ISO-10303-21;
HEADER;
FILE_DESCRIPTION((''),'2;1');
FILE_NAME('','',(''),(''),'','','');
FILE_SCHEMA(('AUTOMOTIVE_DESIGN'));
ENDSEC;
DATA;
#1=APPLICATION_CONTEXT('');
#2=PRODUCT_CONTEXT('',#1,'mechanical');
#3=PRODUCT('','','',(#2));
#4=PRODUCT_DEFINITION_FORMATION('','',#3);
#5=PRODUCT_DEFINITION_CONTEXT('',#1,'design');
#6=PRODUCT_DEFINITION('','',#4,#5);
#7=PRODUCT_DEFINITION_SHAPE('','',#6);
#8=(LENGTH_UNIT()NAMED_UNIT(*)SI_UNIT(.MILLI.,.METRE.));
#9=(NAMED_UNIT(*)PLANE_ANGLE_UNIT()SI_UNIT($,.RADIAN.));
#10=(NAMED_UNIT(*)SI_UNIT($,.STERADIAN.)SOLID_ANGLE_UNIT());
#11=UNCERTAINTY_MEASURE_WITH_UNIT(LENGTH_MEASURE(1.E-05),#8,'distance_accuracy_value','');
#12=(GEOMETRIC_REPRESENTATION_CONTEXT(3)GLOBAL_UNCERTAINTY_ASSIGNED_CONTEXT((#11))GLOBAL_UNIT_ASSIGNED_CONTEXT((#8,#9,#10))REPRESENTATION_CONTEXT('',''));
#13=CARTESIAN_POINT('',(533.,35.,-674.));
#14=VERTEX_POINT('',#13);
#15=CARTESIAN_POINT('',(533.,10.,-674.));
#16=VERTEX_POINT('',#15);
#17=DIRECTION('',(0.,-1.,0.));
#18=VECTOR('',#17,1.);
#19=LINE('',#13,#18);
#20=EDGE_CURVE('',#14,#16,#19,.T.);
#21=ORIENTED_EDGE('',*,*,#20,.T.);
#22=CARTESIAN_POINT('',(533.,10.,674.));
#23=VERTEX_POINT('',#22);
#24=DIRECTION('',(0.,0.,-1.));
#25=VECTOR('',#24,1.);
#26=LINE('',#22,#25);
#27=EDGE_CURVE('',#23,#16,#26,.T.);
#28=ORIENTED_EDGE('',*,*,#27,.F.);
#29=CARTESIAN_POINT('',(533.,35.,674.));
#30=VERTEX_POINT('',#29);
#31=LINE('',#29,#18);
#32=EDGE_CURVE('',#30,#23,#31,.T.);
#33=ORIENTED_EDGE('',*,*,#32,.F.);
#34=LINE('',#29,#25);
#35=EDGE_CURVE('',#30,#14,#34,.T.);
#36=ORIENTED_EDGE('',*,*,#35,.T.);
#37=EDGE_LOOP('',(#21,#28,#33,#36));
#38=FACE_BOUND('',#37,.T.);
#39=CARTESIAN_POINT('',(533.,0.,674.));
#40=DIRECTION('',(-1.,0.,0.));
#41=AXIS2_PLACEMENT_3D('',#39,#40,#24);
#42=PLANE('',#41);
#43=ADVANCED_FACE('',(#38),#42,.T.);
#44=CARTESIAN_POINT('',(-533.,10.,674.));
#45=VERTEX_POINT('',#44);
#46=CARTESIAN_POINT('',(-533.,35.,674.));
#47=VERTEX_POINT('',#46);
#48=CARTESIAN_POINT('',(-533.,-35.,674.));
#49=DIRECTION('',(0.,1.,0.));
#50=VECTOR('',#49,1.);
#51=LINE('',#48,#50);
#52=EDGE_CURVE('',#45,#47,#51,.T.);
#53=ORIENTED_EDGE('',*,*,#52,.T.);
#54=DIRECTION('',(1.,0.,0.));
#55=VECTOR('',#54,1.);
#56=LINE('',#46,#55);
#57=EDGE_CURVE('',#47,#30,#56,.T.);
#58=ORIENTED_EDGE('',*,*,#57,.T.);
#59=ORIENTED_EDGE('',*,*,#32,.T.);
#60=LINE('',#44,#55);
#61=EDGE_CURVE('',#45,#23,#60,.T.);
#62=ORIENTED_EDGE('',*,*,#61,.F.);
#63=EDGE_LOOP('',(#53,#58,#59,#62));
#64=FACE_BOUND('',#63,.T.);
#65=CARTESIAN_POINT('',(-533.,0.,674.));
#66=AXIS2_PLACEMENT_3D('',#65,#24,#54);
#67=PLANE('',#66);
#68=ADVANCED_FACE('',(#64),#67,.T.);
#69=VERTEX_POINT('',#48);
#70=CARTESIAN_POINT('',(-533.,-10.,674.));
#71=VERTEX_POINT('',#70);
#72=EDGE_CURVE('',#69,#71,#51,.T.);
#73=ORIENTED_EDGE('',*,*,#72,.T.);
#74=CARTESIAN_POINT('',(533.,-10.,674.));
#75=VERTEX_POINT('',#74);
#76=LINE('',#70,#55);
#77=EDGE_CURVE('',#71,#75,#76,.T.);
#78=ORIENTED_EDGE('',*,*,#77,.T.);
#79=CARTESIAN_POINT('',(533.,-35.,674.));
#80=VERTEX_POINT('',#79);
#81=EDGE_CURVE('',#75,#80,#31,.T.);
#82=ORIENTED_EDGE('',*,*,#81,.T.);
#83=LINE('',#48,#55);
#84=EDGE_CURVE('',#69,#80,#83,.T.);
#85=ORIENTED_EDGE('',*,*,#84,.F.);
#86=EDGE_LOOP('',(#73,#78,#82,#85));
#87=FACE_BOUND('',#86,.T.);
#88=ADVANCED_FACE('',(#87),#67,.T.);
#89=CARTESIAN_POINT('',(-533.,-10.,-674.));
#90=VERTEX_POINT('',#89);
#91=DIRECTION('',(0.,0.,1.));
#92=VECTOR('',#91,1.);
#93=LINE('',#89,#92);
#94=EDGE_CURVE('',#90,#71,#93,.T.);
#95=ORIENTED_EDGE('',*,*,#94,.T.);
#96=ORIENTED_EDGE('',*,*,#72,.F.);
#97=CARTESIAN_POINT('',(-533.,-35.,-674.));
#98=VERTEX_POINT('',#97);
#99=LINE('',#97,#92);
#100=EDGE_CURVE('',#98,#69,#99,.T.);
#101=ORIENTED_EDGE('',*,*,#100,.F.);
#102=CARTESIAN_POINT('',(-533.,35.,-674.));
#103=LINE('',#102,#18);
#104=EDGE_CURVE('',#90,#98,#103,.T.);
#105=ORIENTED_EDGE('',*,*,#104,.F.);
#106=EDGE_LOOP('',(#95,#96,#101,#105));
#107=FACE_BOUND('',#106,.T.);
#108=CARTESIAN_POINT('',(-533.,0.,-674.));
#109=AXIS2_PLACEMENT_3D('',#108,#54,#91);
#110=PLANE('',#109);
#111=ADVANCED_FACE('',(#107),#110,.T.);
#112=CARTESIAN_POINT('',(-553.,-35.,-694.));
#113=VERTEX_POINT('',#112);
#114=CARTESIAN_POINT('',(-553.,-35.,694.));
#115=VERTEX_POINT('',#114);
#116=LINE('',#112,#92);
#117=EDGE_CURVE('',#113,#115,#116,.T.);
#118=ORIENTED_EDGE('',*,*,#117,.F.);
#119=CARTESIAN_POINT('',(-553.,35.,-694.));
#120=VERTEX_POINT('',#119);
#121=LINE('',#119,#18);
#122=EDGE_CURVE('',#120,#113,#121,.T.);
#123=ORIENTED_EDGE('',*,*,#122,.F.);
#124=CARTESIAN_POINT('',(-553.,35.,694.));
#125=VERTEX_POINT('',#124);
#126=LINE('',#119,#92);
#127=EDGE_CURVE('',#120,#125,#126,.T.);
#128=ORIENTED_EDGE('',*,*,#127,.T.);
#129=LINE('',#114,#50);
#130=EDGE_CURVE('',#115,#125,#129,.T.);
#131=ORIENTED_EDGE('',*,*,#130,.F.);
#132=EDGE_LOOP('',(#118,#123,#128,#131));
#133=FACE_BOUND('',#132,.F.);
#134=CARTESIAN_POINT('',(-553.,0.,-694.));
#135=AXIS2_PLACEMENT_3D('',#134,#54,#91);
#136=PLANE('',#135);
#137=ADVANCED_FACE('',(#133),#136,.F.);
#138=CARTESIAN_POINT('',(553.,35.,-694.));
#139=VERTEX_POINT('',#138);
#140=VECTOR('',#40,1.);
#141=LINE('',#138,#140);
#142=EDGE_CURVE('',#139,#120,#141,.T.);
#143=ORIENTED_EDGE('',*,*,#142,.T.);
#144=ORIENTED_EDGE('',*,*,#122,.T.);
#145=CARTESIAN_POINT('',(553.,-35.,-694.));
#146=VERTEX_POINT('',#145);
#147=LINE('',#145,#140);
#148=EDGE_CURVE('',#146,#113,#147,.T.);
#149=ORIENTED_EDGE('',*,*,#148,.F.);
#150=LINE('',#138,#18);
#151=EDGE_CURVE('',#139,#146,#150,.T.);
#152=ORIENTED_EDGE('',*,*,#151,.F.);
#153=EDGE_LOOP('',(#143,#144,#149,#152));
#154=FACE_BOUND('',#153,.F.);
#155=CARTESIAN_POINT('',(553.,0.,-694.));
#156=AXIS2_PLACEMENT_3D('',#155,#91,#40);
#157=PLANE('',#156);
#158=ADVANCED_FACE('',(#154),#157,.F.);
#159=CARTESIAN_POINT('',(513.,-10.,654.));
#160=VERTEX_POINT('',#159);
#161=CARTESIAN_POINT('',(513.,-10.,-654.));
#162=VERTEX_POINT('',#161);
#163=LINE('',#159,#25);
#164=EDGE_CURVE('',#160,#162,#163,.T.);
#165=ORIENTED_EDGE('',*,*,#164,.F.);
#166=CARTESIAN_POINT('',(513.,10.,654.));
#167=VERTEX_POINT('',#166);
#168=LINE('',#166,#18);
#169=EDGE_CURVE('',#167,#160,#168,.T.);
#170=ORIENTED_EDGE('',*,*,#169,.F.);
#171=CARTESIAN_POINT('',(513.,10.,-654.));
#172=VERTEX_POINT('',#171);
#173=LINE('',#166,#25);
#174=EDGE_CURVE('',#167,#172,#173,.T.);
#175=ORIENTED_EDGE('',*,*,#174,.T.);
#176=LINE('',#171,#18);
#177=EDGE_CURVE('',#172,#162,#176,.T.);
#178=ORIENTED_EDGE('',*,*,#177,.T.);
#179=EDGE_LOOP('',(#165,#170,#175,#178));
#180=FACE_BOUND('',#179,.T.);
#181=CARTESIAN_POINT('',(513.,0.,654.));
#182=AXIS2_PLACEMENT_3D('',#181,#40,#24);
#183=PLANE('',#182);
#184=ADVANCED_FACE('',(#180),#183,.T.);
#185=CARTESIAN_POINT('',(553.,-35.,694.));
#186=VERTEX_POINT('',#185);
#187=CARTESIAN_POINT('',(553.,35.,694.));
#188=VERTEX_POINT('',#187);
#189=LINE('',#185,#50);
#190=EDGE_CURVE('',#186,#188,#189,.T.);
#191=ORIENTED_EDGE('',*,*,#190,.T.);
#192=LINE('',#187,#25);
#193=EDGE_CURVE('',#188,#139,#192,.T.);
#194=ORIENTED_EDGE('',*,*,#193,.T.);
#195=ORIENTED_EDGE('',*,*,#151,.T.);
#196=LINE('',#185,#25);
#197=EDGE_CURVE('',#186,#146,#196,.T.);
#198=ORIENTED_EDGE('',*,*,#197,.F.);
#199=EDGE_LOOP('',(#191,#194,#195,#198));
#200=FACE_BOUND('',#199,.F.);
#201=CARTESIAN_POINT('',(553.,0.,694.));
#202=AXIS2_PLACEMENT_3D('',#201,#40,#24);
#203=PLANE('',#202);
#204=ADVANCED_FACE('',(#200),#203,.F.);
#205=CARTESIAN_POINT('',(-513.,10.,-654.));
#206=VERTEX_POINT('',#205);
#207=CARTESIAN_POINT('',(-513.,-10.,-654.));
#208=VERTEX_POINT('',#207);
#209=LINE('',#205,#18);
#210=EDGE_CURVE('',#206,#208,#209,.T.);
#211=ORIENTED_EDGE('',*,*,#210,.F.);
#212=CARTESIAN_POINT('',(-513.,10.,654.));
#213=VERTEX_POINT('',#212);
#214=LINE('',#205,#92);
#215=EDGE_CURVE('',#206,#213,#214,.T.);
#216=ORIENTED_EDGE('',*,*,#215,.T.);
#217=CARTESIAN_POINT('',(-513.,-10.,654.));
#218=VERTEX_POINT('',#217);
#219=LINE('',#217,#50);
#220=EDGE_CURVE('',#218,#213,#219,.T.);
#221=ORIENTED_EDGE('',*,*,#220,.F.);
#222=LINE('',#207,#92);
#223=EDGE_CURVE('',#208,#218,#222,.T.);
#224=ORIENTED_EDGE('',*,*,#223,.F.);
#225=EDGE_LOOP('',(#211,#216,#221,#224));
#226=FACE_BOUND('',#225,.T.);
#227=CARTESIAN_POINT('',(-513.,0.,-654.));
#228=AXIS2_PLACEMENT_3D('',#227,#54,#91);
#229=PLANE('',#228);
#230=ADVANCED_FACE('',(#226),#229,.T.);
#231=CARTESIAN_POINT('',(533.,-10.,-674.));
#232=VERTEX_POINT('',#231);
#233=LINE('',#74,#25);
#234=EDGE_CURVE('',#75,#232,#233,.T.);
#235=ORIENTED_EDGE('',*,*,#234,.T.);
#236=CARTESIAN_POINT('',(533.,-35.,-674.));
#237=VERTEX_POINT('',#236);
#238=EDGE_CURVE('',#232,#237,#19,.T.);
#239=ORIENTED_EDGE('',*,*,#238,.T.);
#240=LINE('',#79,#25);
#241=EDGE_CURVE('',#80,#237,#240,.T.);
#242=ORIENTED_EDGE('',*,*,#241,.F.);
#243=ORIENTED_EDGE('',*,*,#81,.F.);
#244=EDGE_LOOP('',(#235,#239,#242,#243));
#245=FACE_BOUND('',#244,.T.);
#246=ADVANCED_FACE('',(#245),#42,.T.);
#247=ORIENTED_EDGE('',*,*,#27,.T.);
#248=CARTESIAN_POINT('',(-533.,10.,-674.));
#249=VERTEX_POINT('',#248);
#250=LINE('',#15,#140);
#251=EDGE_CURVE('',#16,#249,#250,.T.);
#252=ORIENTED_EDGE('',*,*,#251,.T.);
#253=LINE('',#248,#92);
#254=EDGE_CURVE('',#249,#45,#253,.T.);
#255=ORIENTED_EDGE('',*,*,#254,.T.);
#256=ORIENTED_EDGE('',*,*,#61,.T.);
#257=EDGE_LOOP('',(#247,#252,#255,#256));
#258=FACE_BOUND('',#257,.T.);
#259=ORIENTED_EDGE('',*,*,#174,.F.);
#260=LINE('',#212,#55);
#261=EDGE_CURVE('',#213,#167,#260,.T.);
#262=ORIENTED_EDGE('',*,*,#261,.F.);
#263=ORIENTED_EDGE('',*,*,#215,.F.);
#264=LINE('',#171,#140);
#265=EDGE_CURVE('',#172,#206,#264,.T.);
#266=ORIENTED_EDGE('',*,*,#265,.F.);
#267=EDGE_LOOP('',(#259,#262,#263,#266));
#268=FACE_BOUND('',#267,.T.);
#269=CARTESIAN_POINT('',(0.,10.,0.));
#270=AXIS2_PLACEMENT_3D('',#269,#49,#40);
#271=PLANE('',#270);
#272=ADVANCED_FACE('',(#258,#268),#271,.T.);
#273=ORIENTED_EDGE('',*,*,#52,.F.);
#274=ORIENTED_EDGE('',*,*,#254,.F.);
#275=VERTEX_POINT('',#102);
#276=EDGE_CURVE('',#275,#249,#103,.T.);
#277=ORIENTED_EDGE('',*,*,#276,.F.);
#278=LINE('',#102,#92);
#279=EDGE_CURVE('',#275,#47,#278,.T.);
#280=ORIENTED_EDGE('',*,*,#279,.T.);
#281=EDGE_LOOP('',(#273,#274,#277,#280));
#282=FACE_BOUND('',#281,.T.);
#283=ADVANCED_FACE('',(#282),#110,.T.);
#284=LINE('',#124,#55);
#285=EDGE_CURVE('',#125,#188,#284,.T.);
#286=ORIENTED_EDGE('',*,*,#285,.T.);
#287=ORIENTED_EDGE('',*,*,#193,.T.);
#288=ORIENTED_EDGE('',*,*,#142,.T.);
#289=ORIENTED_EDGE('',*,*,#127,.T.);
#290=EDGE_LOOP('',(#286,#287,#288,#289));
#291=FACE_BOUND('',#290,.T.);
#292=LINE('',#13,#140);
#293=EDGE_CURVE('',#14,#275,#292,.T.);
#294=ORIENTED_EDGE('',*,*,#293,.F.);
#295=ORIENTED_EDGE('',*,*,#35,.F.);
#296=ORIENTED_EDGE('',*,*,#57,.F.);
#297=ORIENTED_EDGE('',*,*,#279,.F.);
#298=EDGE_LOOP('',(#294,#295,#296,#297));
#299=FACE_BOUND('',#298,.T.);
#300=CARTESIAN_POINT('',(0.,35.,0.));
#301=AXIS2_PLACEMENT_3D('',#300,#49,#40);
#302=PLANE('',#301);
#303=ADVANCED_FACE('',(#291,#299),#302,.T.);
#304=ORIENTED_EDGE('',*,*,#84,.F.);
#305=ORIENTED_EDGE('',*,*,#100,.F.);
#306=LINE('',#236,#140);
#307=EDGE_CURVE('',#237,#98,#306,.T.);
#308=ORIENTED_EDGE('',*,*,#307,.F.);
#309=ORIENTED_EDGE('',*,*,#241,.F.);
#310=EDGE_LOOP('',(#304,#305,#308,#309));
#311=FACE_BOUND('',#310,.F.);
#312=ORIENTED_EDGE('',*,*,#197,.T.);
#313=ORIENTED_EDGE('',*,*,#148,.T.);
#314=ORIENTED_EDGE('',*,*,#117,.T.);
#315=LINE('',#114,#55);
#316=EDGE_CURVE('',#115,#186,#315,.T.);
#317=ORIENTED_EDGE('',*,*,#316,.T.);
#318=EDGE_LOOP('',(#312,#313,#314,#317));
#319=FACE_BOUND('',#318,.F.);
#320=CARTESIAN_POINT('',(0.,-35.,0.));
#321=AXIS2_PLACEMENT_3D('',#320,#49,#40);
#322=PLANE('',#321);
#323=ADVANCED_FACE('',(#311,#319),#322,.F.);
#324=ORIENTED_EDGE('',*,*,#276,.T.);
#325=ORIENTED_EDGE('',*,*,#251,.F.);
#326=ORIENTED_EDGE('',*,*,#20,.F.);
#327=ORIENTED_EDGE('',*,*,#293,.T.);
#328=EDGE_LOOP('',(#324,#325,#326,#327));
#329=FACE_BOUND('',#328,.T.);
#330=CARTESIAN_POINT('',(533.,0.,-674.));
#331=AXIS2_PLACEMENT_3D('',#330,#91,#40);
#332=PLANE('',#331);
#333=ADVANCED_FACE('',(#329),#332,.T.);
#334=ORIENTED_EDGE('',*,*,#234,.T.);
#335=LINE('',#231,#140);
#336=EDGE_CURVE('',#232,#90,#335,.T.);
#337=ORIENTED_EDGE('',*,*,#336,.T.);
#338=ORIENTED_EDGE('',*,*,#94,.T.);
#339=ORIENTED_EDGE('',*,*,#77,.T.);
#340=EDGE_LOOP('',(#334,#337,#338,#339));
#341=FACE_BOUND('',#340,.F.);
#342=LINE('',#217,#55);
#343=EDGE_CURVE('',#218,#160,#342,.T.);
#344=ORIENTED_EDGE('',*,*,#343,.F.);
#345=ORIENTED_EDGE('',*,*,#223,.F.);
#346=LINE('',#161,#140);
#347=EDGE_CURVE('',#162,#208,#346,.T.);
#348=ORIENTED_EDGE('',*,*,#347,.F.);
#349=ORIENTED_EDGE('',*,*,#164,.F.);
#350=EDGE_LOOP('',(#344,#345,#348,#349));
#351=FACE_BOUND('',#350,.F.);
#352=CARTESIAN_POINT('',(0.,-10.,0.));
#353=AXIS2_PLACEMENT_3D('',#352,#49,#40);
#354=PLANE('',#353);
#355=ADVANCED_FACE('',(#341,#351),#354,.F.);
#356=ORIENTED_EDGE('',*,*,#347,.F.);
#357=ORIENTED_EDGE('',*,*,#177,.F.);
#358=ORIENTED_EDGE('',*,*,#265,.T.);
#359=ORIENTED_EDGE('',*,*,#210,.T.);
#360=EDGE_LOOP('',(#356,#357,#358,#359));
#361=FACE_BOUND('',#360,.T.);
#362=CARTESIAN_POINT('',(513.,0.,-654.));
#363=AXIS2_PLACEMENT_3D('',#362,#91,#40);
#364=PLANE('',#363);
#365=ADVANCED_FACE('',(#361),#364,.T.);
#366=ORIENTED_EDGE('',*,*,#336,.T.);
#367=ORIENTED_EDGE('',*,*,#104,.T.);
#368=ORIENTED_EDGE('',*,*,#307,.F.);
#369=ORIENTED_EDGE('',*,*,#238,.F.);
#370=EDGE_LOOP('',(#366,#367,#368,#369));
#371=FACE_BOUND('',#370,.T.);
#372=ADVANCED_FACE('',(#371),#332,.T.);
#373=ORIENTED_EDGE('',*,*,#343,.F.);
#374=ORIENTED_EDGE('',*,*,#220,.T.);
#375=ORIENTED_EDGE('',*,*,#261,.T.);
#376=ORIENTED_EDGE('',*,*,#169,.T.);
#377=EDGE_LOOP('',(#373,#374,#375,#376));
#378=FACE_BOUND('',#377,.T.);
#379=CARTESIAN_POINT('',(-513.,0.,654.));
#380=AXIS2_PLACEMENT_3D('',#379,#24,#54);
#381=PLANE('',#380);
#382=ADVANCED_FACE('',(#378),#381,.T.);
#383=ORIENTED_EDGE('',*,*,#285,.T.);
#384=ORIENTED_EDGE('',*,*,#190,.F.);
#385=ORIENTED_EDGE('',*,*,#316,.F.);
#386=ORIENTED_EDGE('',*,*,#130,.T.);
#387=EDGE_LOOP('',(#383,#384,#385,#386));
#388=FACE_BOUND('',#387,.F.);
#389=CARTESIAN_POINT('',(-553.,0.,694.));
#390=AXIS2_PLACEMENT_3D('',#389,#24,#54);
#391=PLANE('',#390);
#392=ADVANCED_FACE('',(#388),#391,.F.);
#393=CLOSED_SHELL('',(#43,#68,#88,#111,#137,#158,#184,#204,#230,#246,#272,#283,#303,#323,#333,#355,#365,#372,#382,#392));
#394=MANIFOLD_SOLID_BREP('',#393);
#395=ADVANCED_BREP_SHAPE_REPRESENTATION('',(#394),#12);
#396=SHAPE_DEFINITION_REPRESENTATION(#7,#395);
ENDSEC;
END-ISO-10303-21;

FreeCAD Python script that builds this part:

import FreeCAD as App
import Part
import Sketcher


def add_polygon(sketch, points):
    """Adds a closed chain of lines whose ends are joined by coincident constraints."""
    first, n = sketch.GeometryCount, len(points)
    for a, b in zip(points, points[1:] + points[:1]):
        sketch.addGeometry(Part.LineSegment(App.Vector(*a, 0), App.Vector(*b, 0)), False)
    for i in range(n):
        sketch.addConstraint(Sketcher.Constraint("Coincident", first + i, 2, first + (i + 1) % n, 1))

doc = App.newDocument("Part")
body = doc.addObject("PartDesign::Body", "Body")

# Sketch on XZ plane
sketch1 = doc.addObject("Sketcher::SketchObject", "Sketch")
body.addObject(sketch1)
sketch1.AttachmentSupport = (doc.XZ_Plane, [""])
sketch1.MapMode = "FlatFace"
add_polygon(sketch1, [(-533, -674), (-533, 674), (533, 674), (533, -674)])  # lines 0-3
add_polygon(sketch1, [(513, 654), (-513, 654), (-513, -654), (513, -654)])  # lines 4-7
sketch1.addConstraint([
    Sketcher.Constraint("Vertical", 0),
    Sketcher.Constraint("Horizontal", 1),
    Sketcher.Constraint("Vertical", 2),
    Sketcher.Constraint("Horizontal", 3),
    Sketcher.Constraint("Horizontal", 4),
    Sketcher.Constraint("Vertical", 5),
    Sketcher.Constraint("Horizontal", 6),
    Sketcher.Constraint("Vertical", 7),
    Sketcher.Constraint("Symmetric", 0, 2, 2, 2, -1, 1),
    Sketcher.Constraint("Symmetric", 4, 2, 6, 2, -1, 1),
    Sketcher.Constraint("DistanceX", 1, 1, 1, 2, 1066.0),
    Sketcher.Constraint("DistanceX", 4, 2, 4, 1, 1026.0),
    Sketcher.Constraint("DistanceY", 0, 1, 0, 2, 1348.0),
    Sketcher.Constraint("DistanceY", 5, 2, 5, 1, 1308.0),
])
pad1 = doc.addObject("PartDesign::Pad", "Pad")
body.addObject(pad1)
pad1.Profile = sketch1
pad1.Length = 20
pad1.Midplane = True

# Sketch on XZ plane
sketch2 = doc.addObject("Sketcher::SketchObject", "Sketch001")
body.addObject(sketch2)
sketch2.AttachmentSupport = (doc.XZ_Plane, [""])
sketch2.MapMode = "FlatFace"
add_polygon(sketch2, [(-553, -694), (-553, 694), (553, 694), (553, -694)])  # lines 0-3
add_polygon(sketch2, [(533, 674), (-533, 674), (-533, -674), (533, -674)])  # lines 4-7
sketch2.addConstraint([
    Sketcher.Constraint("Vertical", 0),
    Sketcher.Constraint("Horizontal", 1),
    Sketcher.Constraint("Vertical", 2),
    Sketcher.Constraint("Horizontal", 3),
    Sketcher.Constraint("Horizontal", 4),
    Sketcher.Constraint("Vertical", 5),
    Sketcher.Constraint("Horizontal", 6),
    Sketcher.Constraint("Vertical", 7),
    Sketcher.Constraint("Symmetric", 0, 2, 2, 2, -1, 1),
    Sketcher.Constraint("Symmetric", 4, 2, 6, 2, -1, 1),
    Sketcher.Constraint("DistanceX", 1, 1, 1, 2, 1106.0),
    Sketcher.Constraint("DistanceX", 4, 2, 4, 1, 1066.0),
    Sketcher.Constraint("DistanceY", 0, 1, 0, 2, 1388.0),
    Sketcher.Constraint("DistanceY", 5, 2, 5, 1, 1348.0),
])
pad2 = doc.addObject("PartDesign::Pad", "Pad001")
body.addObject(pad2)
pad2.Profile = sketch2
pad2.Length = 70
pad2.Midplane = True

doc.recompute()
